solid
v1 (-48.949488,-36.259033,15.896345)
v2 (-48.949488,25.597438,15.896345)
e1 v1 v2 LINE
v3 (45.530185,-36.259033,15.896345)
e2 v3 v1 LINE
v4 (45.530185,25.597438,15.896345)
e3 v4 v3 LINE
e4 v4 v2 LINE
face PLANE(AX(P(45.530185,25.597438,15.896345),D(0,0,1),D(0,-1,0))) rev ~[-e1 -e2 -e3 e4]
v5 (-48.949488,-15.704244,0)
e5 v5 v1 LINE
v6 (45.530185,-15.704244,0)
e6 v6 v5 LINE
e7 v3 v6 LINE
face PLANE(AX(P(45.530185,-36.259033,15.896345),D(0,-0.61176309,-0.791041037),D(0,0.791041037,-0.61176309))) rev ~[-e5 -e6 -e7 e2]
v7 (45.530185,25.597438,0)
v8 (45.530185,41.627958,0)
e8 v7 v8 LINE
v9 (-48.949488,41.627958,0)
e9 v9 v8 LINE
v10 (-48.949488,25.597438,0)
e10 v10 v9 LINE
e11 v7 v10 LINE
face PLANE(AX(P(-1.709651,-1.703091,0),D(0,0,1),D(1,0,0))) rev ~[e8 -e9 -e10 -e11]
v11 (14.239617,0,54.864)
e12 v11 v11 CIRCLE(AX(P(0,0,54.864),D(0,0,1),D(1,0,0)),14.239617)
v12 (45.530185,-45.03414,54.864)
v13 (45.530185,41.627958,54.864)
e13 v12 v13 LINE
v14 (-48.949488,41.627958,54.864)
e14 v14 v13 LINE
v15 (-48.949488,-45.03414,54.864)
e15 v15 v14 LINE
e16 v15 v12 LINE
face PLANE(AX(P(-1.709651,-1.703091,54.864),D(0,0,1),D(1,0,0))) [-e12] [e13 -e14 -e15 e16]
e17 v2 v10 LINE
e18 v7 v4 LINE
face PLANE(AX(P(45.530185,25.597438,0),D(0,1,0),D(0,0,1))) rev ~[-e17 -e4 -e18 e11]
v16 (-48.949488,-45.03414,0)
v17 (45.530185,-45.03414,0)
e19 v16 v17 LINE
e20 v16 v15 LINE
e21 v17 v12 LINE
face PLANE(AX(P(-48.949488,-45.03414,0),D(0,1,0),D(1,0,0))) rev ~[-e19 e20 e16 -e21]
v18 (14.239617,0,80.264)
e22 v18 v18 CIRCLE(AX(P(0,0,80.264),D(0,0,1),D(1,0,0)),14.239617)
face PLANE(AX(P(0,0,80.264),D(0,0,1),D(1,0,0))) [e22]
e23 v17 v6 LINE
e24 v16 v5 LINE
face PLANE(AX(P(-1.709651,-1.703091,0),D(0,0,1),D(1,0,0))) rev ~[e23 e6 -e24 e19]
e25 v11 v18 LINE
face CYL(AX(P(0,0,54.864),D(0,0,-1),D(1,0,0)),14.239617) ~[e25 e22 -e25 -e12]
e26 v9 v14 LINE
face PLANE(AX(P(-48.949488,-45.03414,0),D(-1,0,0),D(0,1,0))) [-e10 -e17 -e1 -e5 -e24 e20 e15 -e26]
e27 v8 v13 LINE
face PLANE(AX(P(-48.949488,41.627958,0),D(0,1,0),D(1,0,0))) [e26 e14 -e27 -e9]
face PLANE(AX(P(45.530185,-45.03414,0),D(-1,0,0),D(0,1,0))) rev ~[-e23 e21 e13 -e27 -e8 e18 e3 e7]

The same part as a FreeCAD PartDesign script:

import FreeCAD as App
import Part
import Sketcher
from FreeCAD import Vector
Q = App.Units.Quantity

doc = App.newDocument("Part")
body = doc.addObject("PartDesign::Body", "Body")

# Sketch on XY plane
sketch1 = body.newObject("Sketcher::SketchObject", "Sketch")
sketch1.AttachmentSupport = (doc.getObject("XY_Plane"), [""])
sketch1.MapMode = "FlatFace"
sketch1.addGeometry([
    Part.LineSegment(Vector(-49, 42, 0), Vector(-49, -45, 0)),
    Part.LineSegment(Vector(-49, -45, 0), Vector(46, -45, 0)),
    Part.LineSegment(Vector(46, -45, 0), Vector(46, 42, 0)),
    Part.LineSegment(Vector(46, 42, 0), Vector(-49, 42, 0)),
], False)
sketch1.addConstraint([
    Sketcher.Constraint("Coincident", 0, 2, 1, 1),
    Sketcher.Constraint("Coincident", 1, 2, 2, 1),
    Sketcher.Constraint("Coincident", 2, 2, 3, 1),
    Sketcher.Constraint("Coincident", 3, 2, 0, 1),
    Sketcher.Constraint("Vertical", 0),
    Sketcher.Constraint("Horizontal", 1),
    Sketcher.Constraint("Vertical", 2),
    Sketcher.Constraint("Horizontal", 3),
    Sketcher.Constraint("DistanceY", 0, 2, 0, 1, 86.662099),
    Sketcher.Constraint("DistanceX", 1, 1, 1, 2, 94.479673),
    Sketcher.Constraint("DistanceY", 0, 2, -1, 1, 45.03414),
    Sketcher.Constraint("DistanceX", 0, 2, -1, 1, 48.949488),
])
pad1 = body.newObject("PartDesign::Pad", "Pad")
pad1.Profile = sketch1
pad1.Length = Q("2.16 in")

# Sketch on YZ plane
sketch2 = body.newObject("Sketcher::SketchObject", "Sketch001")
sketch2.AttachmentSupport = (doc.getObject("YZ_Plane"), [""])
sketch2.MapMode = "FlatFace"
sketch2.AttachmentOffset = App.Placement(Vector(0, 0, 45.530185), App.Rotation())
sketch2.addGeometry([
    Part.LineSegment(Vector(-36, 16, 0), Vector(-16, 0, 0)),
    Part.LineSegment(Vector(-16, 0, 0), Vector(26, 0, 0)),
    Part.LineSegment(Vector(26, 0, 0), Vector(26, 16, 0)),
    Part.LineSegment(Vector(26, 16, 0), Vector(-36, 16, 0)),
], False)
sketch2.addConstraint([
    Sketcher.Constraint("Coincident", 0, 2, 1, 1),
    Sketcher.Constraint("Coincident", 1, 2, 2, 1),
    Sketcher.Constraint("Coincident", 2, 2, 3, 1),
    Sketcher.Constraint("Coincident", 3, 2, 0, 1),
    Sketcher.Constraint("Horizontal", 1),
    Sketcher.Constraint("Vertical", 2),
    Sketcher.Constraint("Horizontal", 3),
    Sketcher.Constraint("PointOnObject", 0, 2, -1),
    Sketcher.Constraint("DistanceX", 3, 2, 3, 1, 61.856471),
    Sketcher.Constraint("DistanceX", 1, 1, 1, 2, 41.301683),
    Sketcher.Constraint("DistanceY", 2, 1, 2, 2, 15.896345),
    Sketcher.Constraint("DistanceX", -1, 1, 1, 2, 25.597438),
])
pocket1 = body.newObject("PartDesign::Pocket", "Pocket")
pocket1.Profile = sketch2
pocket1.Type = "ThroughAll"

# Sketch on XY plane
sketch3 = body.newObject("Sketcher::SketchObject", "Sketch002")
sketch3.AttachmentSupport = (doc.getObject("XY_Plane"), [""])
sketch3.MapMode = "FlatFace"
sketch3.AttachmentOffset = App.Placement(Vector(0, 0, 2.16 * 25.4), App.Rotation())
sketch3.addGeometry(Part.Circle(Vector(0, 0, 0), Vector(0, 0, 1), 14), False)
sketch3.addConstraint([
    Sketcher.Constraint("Coincident", 0, 3, -1, 1),
    Sketcher.Constraint("Diameter", 0, 28.479233),
])
pad2 = body.newObject("PartDesign::Pad", "Pad001")
pad2.Profile = sketch3
pad2.Length = Q("1 in")

doc.recompute()
